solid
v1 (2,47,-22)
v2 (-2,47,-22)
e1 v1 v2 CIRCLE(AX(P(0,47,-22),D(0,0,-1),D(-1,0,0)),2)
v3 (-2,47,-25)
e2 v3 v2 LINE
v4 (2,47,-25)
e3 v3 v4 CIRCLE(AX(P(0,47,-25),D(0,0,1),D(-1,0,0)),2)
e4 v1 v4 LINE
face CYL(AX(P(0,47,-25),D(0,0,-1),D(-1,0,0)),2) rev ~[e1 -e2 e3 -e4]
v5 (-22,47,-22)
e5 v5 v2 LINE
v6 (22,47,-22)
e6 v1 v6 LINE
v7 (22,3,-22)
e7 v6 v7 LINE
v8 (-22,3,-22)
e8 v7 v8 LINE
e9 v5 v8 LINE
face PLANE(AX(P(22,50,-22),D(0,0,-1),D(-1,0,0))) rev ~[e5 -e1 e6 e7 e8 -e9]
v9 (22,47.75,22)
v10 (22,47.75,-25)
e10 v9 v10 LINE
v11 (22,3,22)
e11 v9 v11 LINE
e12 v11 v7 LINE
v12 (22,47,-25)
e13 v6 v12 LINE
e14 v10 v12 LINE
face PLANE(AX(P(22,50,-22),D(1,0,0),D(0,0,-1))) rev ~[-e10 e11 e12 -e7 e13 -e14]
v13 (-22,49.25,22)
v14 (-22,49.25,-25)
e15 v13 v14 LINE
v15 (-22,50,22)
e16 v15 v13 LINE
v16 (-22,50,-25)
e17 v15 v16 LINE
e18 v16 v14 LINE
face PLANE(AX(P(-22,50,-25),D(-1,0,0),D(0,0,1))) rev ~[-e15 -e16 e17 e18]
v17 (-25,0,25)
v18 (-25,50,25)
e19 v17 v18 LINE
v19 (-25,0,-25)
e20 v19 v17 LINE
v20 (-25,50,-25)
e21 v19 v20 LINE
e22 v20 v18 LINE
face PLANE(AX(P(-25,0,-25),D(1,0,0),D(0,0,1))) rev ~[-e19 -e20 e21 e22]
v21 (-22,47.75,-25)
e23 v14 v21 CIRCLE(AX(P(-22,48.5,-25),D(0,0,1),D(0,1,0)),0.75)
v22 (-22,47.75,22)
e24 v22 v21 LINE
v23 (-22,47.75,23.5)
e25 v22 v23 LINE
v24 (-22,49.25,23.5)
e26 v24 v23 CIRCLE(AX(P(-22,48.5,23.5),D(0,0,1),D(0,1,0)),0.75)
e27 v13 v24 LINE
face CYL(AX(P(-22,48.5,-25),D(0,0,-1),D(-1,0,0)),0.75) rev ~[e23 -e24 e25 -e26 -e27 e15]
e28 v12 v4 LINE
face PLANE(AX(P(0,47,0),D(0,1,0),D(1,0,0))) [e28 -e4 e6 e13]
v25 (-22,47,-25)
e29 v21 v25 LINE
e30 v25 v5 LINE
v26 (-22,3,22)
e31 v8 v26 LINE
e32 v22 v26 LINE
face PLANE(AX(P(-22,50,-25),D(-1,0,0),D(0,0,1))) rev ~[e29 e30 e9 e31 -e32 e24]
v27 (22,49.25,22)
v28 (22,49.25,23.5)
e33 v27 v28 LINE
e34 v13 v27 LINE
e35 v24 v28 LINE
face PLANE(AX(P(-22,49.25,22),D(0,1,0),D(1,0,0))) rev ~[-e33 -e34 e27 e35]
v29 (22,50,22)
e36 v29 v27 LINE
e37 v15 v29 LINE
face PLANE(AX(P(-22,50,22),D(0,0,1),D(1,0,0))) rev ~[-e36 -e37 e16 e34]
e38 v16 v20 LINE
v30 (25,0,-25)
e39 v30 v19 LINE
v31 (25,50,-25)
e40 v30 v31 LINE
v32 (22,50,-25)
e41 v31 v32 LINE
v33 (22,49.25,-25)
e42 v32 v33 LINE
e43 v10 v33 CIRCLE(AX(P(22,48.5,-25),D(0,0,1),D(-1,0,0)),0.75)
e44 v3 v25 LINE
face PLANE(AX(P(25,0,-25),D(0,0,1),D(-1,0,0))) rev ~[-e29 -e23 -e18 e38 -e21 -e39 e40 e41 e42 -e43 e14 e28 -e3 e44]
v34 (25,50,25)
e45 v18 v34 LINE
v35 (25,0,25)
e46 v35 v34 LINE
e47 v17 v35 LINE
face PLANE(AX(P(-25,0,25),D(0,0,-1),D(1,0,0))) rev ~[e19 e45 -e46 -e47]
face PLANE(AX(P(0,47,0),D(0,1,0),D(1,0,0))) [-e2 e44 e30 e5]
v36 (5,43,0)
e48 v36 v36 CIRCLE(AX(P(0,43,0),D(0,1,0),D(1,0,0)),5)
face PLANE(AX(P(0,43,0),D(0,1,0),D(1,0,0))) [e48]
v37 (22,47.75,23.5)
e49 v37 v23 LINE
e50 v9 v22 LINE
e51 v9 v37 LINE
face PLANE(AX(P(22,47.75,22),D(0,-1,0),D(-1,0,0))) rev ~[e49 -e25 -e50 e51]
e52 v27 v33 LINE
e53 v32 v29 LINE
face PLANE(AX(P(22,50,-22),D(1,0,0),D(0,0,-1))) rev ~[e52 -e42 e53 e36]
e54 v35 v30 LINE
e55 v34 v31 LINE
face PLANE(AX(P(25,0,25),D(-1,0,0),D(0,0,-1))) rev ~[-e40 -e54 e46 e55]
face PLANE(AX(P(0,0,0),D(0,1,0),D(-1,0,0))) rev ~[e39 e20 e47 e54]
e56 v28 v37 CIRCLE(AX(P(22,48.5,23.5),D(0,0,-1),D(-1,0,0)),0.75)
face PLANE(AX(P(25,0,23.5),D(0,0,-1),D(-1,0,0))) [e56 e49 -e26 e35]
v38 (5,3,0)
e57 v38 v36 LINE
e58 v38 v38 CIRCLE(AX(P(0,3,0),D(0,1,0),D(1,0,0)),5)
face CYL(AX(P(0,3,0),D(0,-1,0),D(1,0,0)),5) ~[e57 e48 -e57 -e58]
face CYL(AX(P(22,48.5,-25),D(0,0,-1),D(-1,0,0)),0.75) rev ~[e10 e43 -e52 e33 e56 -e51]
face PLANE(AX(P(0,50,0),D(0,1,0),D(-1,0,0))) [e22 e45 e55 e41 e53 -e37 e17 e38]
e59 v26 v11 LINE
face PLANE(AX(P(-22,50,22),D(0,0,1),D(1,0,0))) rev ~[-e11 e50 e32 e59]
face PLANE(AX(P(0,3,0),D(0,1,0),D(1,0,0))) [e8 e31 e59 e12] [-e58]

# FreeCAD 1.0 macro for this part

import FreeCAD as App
import Part
import Sketcher
from FreeCAD import Vector

doc = App.newDocument("Part")
body = doc.addObject("PartDesign::Body", "Body")

sketch1 = body.newObject("Sketcher::SketchObject", "Sketch")
sketch1.AttachmentSupport = (doc.getObject("XZ_Plane"), [""])
sketch1.MapMode = "FlatFace"
sketch1.addGeometry(Part.LineSegment(Vector(-25, -25, 0), Vector(-25, 25, 0)), False)
sketch1.addGeometry(Part.LineSegment(Vector(-25, 25, 0), Vector(25, 25, 0)), False)
sketch1.addGeometry(Part.LineSegment(Vector(25, 25, 0), Vector(25, -25, 0)), False)
sketch1.addGeometry(Part.LineSegment(Vector(25, -25, 0), Vector(-25, -25, 0)), False)
sketch1.addConstraint(Sketcher.Constraint("Coincident", 0, 2, 1, 1))
sketch1.addConstraint(Sketcher.Constraint("Coincident", 1, 2, 2, 1))
sketch1.addConstraint(Sketcher.Constraint("Coincident", 2, 2, 3, 1))
sketch1.addConstraint(Sketcher.Constraint("Coincident", 3, 2, 0, 1))
sketch1.addConstraint(Sketcher.Constraint("Vertical", 0))
sketch1.addConstraint(Sketcher.Constraint("Horizontal", 1))
sketch1.addConstraint(Sketcher.Constraint("Vertical", 2))
sketch1.addConstraint(Sketcher.Constraint("Horizontal", 3))
sketch1.addConstraint(Sketcher.Constraint("Symmetric", 0, 2, 2, 2, -1, 1))
sketch1.addConstraint(Sketcher.Constraint("Equal", 3, 0))
sketch1.addConstraint(Sketcher.Constraint("DistanceX", 1, 1, 1, 2, 50.0))
pad1 = body.newObject("PartDesign::Pad", "Pad")
pad1.Profile = sketch1
pad1.Length = 50
pad1.Reversed = True

sketch2 = body.newObject("Sketcher::SketchObject", "Sketch001")
sketch2.AttachmentSupport = (doc.getObject("XZ_Plane"), [""])
sketch2.MapMode = "FlatFace"
sketch2.AttachmentOffset = App.Placement(Vector(0, 0, -50), App.Rotation())
sketch2.addGeometry(Part.LineSegment(Vector(-22, -22, 0), Vector(-22, 22, 0)), False)
sketch2.addGeometry(Part.LineSegment(Vector(-22, 22, 0), Vector(22, 22, 0)), False)
sketch2.addGeometry(Part.LineSegment(Vector(22, 22, 0), Vector(22, -22, 0)), False)
sketch2.addGeometry(Part.LineSegment(Vector(22, -22, 0), Vector(-22, -22, 0)), False)
sketch2.addConstraint(Sketcher.Constraint("Coincident", 0, 2, 1, 1))
sketch2.addConstraint(Sketcher.Constraint("Coincident", 1, 2, 2, 1))
sketch2.addConstraint(Sketcher.Constraint("Coincident", 2, 2, 3, 1))
sketch2.addConstraint(Sketcher.Constraint("Coincident", 3, 2, 0, 1))
sketch2.addConstraint(Sketcher.Constraint("Vertical", 0))
sketch2.addConstraint(Sketcher.Constraint("Horizontal", 1))
sketch2.addConstraint(Sketcher.Constraint("Vertical", 2))
sketch2.addConstraint(Sketcher.Constraint("Horizontal", 3))
sketch2.addConstraint(Sketcher.Constraint("Symmetric", 0, 2, 2, 2, -1, 1))
sketch2.addConstraint(Sketcher.Constraint("Equal", 3, 0))
sketch2.addConstraint(Sketcher.Constraint("DistanceX", 0, 2, -1, 1, 22.0))
pocket1 = body.newObject("PartDesign::Pocket", "Pocket")
pocket1.Profile = sketch2
pocket1.Length = 47
pocket1.Reversed = True

sketch3 = body.newObject("Sketcher::SketchObject", "Sketch002")
sketch3.AttachmentSupport = (doc.getObject("XZ_Plane"), [""])
sketch3.MapMode = "FlatFace"
sketch3.AttachmentOffset = App.Placement(Vector(0, 0, -3), App.Rotation())
sketch3.addGeometry(Part.Circle(Vector(0, 0, 0), Vector(0, 0, 1), 5), False)
sketch3.addConstraint(Sketcher.Constraint("Coincident", 0, 3, -1, 1))
sketch3.addConstraint(Sketcher.Constraint("Diameter", 0, 10.0))
pad2 = body.newObject("PartDesign::Pad", "Pad001")
pad2.Profile = sketch3
pad2.Length = 40
pad2.Reversed = True

sketch4 = body.newObject("Sketcher::SketchObject", "Sketch003")
sketch4.AttachmentSupport = (doc.getObject("XZ_Plane"), [""])
sketch4.MapMode = "FlatFace"
sketch4.AttachmentOffset = App.Placement(Vector(0, 0, -50), App.Rotation())
sketch4.addGeometry(Part.LineSegment(Vector(-22, -25, 0), Vector(-22, -22, 0)), False)
sketch4.addGeometry(Part.LineSegment(Vector(-22, -22, 0), Vector(22, -22, 0)), False)
sketch4.addGeometry(Part.LineSegment(Vector(22, -22, 0), Vector(22, -25, 0)), False)
sketch4.addGeometry(Part.LineSegment(Vector(22, -25, 0), Vector(-22, -25, 0)), False)
sketch4.addConstraint(Sketcher.Constraint("Coincident", 0, 2, 1, 1))
sketch4.addConstraint(Sketcher.Constraint("Coincident", 1, 2, 2, 1))
sketch4.addConstraint(Sketcher.Constraint("Coincident", 2, 2, 3, 1))
sketch4.addConstraint(Sketcher.Constraint("Coincident", 3, 2, 0, 1))
sketch4.addConstraint(Sketcher.Constraint("Vertical", 0))
sketch4.addConstraint(Sketcher.Constraint("Horizontal", 1))
sketch4.addConstraint(Sketcher.Constraint("Vertical", 2))
sketch4.addConstraint(Sketcher.Constraint("Horizontal", 3))
sketch4.addConstraint(Sketcher.Constraint("DistanceY", 0, 1, 0, 2, 3.0))
sketch4.addConstraint(Sketcher.Constraint("DistanceY", 2, 2, -1, 1, 25.0))
sketch4.addConstraint(Sketcher.Constraint("DistanceX", 1, 1, 1, 2, 44.0))
sketch4.addConstraint(Sketcher.Constraint("DistanceX", 0, 2, -1, 1, 22.0))
pocket2 = body.newObject("PartDesign::Pocket", "Pocket001")
pocket2.Profile = sketch4
pocket2.Length = 3
pocket2.Reversed = True

sketch5 = body.newObject("Sketcher::SketchObject", "Sketch004")
sketch5.AttachmentSupport = (doc.getObject("XY_Plane"), [""])
sketch5.MapMode = "FlatFace"
sketch5.AttachmentOffset = App.Placement(Vector(0, 0, -25), App.Rotation())
sketch5.addGeometry(Part.Circle(Vector(0, 47, 0), Vector(0, 0, 1), 2), False)
sketch5.addConstraint(Sketcher.Constraint("PointOnObject", 0, 3, -2))
sketch5.addConstraint(Sketcher.Constraint("Diameter", 0, 4.0))
sketch5.addConstraint(Sketcher.Constraint("DistanceY", -1, 1, 0, 3, 47.0))
pocket3 = body.newObject("PartDesign::Pocket", "Pocket002")
pocket3.Profile = sketch5
pocket3.Length = 3
pocket3.Reversed = True

sketch6 = body.newObject("Sketcher::SketchObject", "Sketch005")
sketch6.AttachmentSupport = (doc.getObject("XY_Plane"), [""])
sketch6.MapMode = "FlatFace"
sketch6.AttachmentOffset = App.Placement(Vector(0, 0, -25), App.Rotation())
sketch6.addGeometry(Part.Circle(Vector(-22, 48.5, 0), Vector(0, 0, 1), 0.75), False)
sketch6.addConstraint(Sketcher.Constraint("Diameter", 0, 1.5))
sketch6.addConstraint(Sketcher.Constraint("DistanceX", 0, 3, -1, 1, 22.0))
sketch6.addConstraint(Sketcher.Constraint("DistanceY", -1, 1, 0, 3, 48.5))
pocket4 = body.newObject("PartDesign::Pocket", "Pocket003")
pocket4.Profile = sketch6
pocket4.Length = 48.5
pocket4.Reversed = True

sketch7 = body.newObject("Sketcher::SketchObject", "Sketch006")
sketch7.AttachmentSupport = (doc.getObject("XY_Plane"), [""])
sketch7.MapMode = "FlatFace"
sketch7.AttachmentOffset = App.Placement(Vector(0, 0, -25), App.Rotation())
sketch7.addGeometry(Part.Circle(Vector(22, 48.5, 0), Vector(0, 0, 1), 0.75), False)
sketch7.addConstraint(Sketcher.Constraint("Diameter", 0, 1.5))
sketch7.addConstraint(Sketcher.Constraint("DistanceX", -1, 1, 0, 3, 22.0))
sketch7.addConstraint(Sketcher.Constraint("DistanceY", -1, 1, 0, 3, 48.5))
pocket5 = body.newObject("PartDesign::Pocket", "Pocket004")
pocket5.Profile = sketch7
pocket5.Length = 48.5
pocket5.Reversed = True

sketch8 = body.newObject("Sketcher::SketchObject", "Sketch007")
sketch8.AttachmentSupport = (doc.getObject("XY_Plane"), [""])
sketch8.MapMode = "FlatFace"
sketch8.AttachmentOffset = App.Placement(Vector(0, 0, 22), App.Rotation())
sketch8.addGeometry(Part.LineSegment(Vector(-22, 47.75, 0), Vector(-22, 49.25, 0)), False)
sketch8.addGeometry(Part.LineSegment(Vector(-22, 49.25, 0), Vector(22, 49.25, 0)), False)
sketch8.addGeometry(Part.LineSegment(Vector(22, 49.25, 0), Vector(22, 47.75, 0)), False)
sketch8.addGeometry(Part.LineSegment(Vector(22, 47.75, 0), Vector(-22, 47.75, 0)), False)
sketch8.addConstraint(Sketcher.Constraint("Coincident", 0, 2, 1, 1))
sketch8.addConstraint(Sketcher.Constraint("Coincident", 1, 2, 2, 1))
sketch8.addConstraint(Sketcher.Constraint("Coincident", 2, 2, 3, 1))
sketch8.addConstraint(Sketcher.Constraint("Coincident", 3, 2, 0, 1))
sketch8.addConstraint(Sketcher.Constraint("Vertical", 0))
sketch8.addConstraint(Sketcher.Constraint("Horizontal", 1))
sketch8.addConstraint(Sketcher.Constraint("Vertical", 2))
sketch8.addConstraint(Sketcher.Constraint("Horizontal", 3))
sketch8.addConstraint(Sketcher.Constraint("DistanceX", 1, 1, 1, 2, 44.0))
sketch8.addConstraint(Sketcher.Constraint("DistanceY", 0, 1, 0, 2, 1.5))
sketch8.addConstraint(Sketcher.Constraint("DistanceX", 0, 2, -1, 1, 22.0))
sketch8.addConstraint(Sketcher.Constraint("DistanceY", -1, 1, 0, 2, 49.25))
pocket6 = body.newObject("PartDesign::Pocket", "Pocket005")
pocket6.Profile = sketch8
pocket6.Length = 1.5
pocket6.Reversed = True

doc.recompute()
